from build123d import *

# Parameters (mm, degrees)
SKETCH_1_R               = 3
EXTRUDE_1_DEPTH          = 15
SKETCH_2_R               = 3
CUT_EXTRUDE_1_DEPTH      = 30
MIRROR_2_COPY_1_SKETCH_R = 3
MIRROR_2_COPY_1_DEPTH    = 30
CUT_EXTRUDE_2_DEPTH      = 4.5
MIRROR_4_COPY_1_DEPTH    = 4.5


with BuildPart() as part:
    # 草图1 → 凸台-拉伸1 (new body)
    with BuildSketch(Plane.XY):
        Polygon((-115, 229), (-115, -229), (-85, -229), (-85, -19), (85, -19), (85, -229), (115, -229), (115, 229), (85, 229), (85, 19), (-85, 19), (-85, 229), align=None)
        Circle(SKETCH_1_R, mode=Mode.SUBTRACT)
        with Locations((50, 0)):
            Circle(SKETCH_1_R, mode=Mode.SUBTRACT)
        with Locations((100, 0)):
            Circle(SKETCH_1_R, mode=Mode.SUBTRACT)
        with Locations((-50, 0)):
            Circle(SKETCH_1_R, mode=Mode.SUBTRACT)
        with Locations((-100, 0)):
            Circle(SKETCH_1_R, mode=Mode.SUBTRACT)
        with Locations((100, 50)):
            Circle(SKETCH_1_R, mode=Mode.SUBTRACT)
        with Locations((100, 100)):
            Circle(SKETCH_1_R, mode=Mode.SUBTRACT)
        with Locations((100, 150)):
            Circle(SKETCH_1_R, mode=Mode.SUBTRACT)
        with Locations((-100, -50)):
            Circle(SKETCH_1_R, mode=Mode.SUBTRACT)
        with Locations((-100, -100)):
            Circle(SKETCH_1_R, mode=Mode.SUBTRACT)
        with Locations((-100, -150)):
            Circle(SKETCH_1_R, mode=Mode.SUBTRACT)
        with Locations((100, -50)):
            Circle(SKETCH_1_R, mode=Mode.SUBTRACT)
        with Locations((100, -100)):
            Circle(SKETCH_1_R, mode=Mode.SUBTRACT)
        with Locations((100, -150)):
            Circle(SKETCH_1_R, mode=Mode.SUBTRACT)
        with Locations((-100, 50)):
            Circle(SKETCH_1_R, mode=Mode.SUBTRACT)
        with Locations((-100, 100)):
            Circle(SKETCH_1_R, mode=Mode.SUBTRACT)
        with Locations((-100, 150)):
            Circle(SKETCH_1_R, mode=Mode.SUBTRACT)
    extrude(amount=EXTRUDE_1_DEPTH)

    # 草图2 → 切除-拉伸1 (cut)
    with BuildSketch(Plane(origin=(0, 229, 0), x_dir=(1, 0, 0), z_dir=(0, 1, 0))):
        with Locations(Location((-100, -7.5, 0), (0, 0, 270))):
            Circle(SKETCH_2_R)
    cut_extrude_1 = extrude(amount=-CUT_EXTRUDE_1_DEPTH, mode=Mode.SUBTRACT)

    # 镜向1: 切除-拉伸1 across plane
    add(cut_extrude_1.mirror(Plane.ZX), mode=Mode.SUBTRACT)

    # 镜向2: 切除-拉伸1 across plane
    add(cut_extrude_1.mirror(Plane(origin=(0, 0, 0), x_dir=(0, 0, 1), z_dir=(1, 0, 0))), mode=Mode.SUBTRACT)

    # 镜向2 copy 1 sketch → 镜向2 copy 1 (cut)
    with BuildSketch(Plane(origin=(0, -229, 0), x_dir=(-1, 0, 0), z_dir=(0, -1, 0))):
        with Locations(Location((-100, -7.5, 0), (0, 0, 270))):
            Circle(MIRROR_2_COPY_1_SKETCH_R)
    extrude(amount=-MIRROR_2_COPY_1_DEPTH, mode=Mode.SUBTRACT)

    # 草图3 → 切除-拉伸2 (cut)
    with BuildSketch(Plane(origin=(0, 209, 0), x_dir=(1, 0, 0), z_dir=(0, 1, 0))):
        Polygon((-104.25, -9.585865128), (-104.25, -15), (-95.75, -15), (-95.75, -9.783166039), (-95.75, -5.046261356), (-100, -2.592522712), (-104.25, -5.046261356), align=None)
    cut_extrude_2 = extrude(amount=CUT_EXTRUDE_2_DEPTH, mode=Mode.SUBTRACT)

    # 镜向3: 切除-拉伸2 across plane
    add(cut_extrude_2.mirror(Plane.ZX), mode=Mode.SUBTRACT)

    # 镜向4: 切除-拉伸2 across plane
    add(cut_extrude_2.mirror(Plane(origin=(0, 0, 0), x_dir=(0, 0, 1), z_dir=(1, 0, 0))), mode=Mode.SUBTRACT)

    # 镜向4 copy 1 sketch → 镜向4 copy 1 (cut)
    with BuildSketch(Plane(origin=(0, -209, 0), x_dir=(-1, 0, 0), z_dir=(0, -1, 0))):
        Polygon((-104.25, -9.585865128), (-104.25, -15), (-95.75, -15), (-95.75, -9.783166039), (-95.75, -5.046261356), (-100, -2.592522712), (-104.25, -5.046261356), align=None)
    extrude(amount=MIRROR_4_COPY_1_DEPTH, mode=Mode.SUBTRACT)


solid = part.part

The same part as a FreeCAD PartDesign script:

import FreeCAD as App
import Part
import Sketcher
from FreeCAD import Vector
Q = App.Units.Quantity

doc = App.newDocument("Part")
body = doc.addObject("PartDesign::Body", "Body")

# Sketch on XY plane
sketch1 = body.newObject("Sketcher::SketchObject", "Sketch")
sketch1.AttachmentSupport = (doc.getObject("XY_Plane"), [""])
sketch1.MapMode = "FlatFace"
sketch1.addGeometry([
    Part.LineSegment(Vector(-115, 229, 0), Vector(-115, -229, 0)),  # 0
    Part.LineSegment(Vector(-115, -229, 0), Vector(-85, -229, 0)),  # 1
    Part.LineSegment(Vector(-85, -229, 0), Vector(-85, -19, 0)),  # 2
    Part.LineSegment(Vector(-85, -19, 0), Vector(85, -19, 0)),  # 3
    Part.LineSegment(Vector(85, -19, 0), Vector(85, -229, 0)),  # 4
    Part.LineSegment(Vector(85, -229, 0), Vector(115, -229, 0)),  # 5
    Part.LineSegment(Vector(115, -229, 0), Vector(115, 229, 0)),  # 6
    Part.LineSegment(Vector(115, 229, 0), Vector(85, 229, 0)),  # 7
    Part.LineSegment(Vector(85, 229, 0), Vector(85, 19, 0)),  # 8
    Part.LineSegment(Vector(85, 19, 0), Vector(-85, 19, 0)),  # 9
    Part.LineSegment(Vector(-85, 19, 0), Vector(-85, 229, 0)),  # 10
    Part.LineSegment(Vector(-85, 229, 0), Vector(-115, 229, 0)),  # 11
    Part.Circle(Vector(-100, -150, 0), Vector(0, 0, 1), 3),  # 12
    Part.Circle(Vector(-100, -100, 0), Vector(0, 0, 1), 3),  # 13
    Part.Circle(Vector(-100, -50, 0), Vector(0, 0, 1), 3),  # 14
    Part.Circle(Vector(100, -150, 0), Vector(0, 0, 1), 3),  # 15
    Part.Circle(Vector(100, -100, 0), Vector(0, 0, 1), 3),  # 16
    Part.Circle(Vector(100, -50, 0), Vector(0, 0, 1), 3),  # 17
    Part.Circle(Vector(-100, 0, 0), Vector(0, 0, 1), 3),  # 18
    Part.Circle(Vector(-100, 50, 0), Vector(0, 0, 1), 3),  # 19
    Part.Circle(Vector(-50, 0, 0), Vector(0, 0, 1), 3),  # 20
    Part.Circle(Vector(0, 0, 0), Vector(0, 0, 1), 3),  # 21
    Part.Circle(Vector(-100, 100, 0), Vector(0, 0, 1), 3),  # 22
    Part.Circle(Vector(-100, 150, 0), Vector(0, 0, 1), 3),  # 23
    Part.Circle(Vector(50, 0, 0), Vector(0, 0, 1), 3),  # 24
    Part.Circle(Vector(100, 0, 0), Vector(0, 0, 1), 3),  # 25
    Part.Circle(Vector(100, 50, 0), Vector(0, 0, 1), 3),  # 26
    Part.Circle(Vector(100, 100, 0), Vector(0, 0, 1), 3),  # 27
    Part.Circle(Vector(100, 150, 0), Vector(0, 0, 1), 3),  # 28
], False)
sketch1.addConstraint([
    Sketcher.Constraint("Coincident", 0, 2, 1, 1),
    Sketcher.Constraint("Coincident", 1, 2, 2, 1),
    Sketcher.Constraint("Coincident", 2, 2, 3, 1),
    Sketcher.Constraint("Coincident", 3, 2, 4, 1),
    Sketcher.Constraint("Coincident", 4, 2, 5, 1),
    Sketcher.Constraint("Coincident", 5, 2, 6, 1),
    Sketcher.Constraint("Coincident", 6, 2, 7, 1),
    Sketcher.Constraint("Coincident", 7, 2, 8, 1),
    Sketcher.Constraint("Coincident", 8, 2, 9, 1),
    Sketcher.Constraint("Coincident", 9, 2, 10, 1),
    Sketcher.Constraint("Coincident", 10, 2, 11, 1),
    Sketcher.Constraint("Coincident", 11, 2, 0, 1),
    Sketcher.Constraint("Vertical", 0),
    Sketcher.Constraint("Horizontal", 1),
    Sketcher.Constraint("Vertical", 2),
    Sketcher.Constraint("Horizontal", 3),
    Sketcher.Constraint("Vertical", 4),
    Sketcher.Constraint("Horizontal", 5),
    Sketcher.Constraint("Vertical", 6),
    Sketcher.Constraint("Horizontal", 7),
    Sketcher.Constraint("Vertical", 8),
    Sketcher.Constraint("Horizontal", 9),
    Sketcher.Constraint("Vertical", 10),
    Sketcher.Constraint("Horizontal", 11),
    Sketcher.Constraint("Coincident", 21, 3, -1, 1),
    Sketcher.Constraint("Equal", 12, 13),
    Sketcher.Constraint("Equal", 13, 14),
    Sketcher.Constraint("Equal", 14, 15),
    Sketcher.Constraint("Equal", 15, 16),
    Sketcher.Constraint("Equal", 16, 17),
    Sketcher.Constraint("Equal", 17, 18),
    Sketcher.Constraint("Equal", 18, 19),
    Sketcher.Constraint("Equal", 19, 20),
    Sketcher.Constraint("Equal", 20, 21),
    Sketcher.Constraint("Equal", 21, 22),
    Sketcher.Constraint("Equal", 22, 23),
    Sketcher.Constraint("Equal", 23, 24),
    Sketcher.Constraint("Equal", 24, 25),
    Sketcher.Constraint("Equal", 25, 26),
    Sketcher.Constraint("Equal", 26, 27),
    Sketcher.Constraint("Equal", 27, 28),
    Sketcher.Constraint("Symmetric", 17, 3, 19, 3, -1, 1),
    Sketcher.Constraint("Symmetric", 16, 3, 22, 3, -1, 1),
    Sketcher.Constraint("Symmetric", 15, 3, 23, 3, -1, 1),
    Sketcher.Constraint("Symmetric", 20, 3, 24, 3, -1, 1),
    Sketcher.Constraint("Symmetric", 18, 3, 25, 3, -1, 1),
    Sketcher.Constraint("Symmetric", 14, 3, 26, 3, -1, 1),
    Sketcher.Constraint("Symmetric", 13, 3, 27, 3, -1, 1),
    Sketcher.Constraint("Symmetric", 12, 3, 28, 3, -1, 1),
    Sketcher.Constraint("Symmetric", 0, 2, 6, 2, -1, 1),
    Sketcher.Constraint("Symmetric", 2, 2, 8, 2, -1, 1),
    Sketcher.Constraint("Symmetric", 4, 2, 10, 2, -1, 1),
    Sketcher.Constraint("Symmetric", 12, 3, 15, 3, -2),
    Sketcher.Constraint("Symmetric", 13, 3, 16, 3, -2),
    Sketcher.Constraint("Symmetric", 14, 3, 17, 3, -2),
    Sketcher.Constraint("Symmetric", 1, 2, 4, 2, -2),
    Sketcher.Constraint("PointOnObject", 18, 3, -1),
    Sketcher.Constraint("PointOnObject", 20, 3, -1),
    Sketcher.Constraint("Vertical", 12, 3, 13, 3),
    Sketcher.Constraint("Vertical", 13, 3, 14, 3),
    Sketcher.Constraint("Vertical", 14, 3, 18, 3),
    Sketcher.Constraint("Diameter", 12, 6.0),
    Sketcher.Constraint("DistanceX", 1, 1, 1, 2, 30.0),
    Sketcher.Constraint("DistanceX", 3, 1, 3, 2, 170.0),
    Sketcher.Constraint("DistanceY", 0, 2, 0, 1, 458.0),
    Sketcher.Constraint("DistanceY", 2, 1, 2, 2, 210.0),
    Sketcher.Constraint("DistanceX", 12, 3, -1, 1, 100.0),
    Sketcher.Constraint("DistanceY", 12, 3, -1, 1, 150.0),
    Sketcher.Constraint("DistanceY", 13, 3, -1, 1, 100.0),
    Sketcher.Constraint("DistanceY", 14, 3, -1, 1, 50.0),
    Sketcher.Constraint("DistanceX", 20, 3, -1, 1, 50.0),
])
pad1 = body.newObject("PartDesign::Pad", "Pad")
pad1.Profile = sketch1
pad1.Length = 15

# Sketch on XZ plane
sketch2 = body.newObject("Sketcher::SketchObject", "Sketch001")
sketch2.AttachmentSupport = (doc.getObject("XZ_Plane"), [""])
sketch2.MapMode = "FlatFace"
sketch2.AttachmentOffset = App.Placement(Vector(0, 0, -229), App.Rotation())
sketch2.addGeometry(Part.Circle(Vector(-100, 7.5, 0), Vector(0, 0, 1), 3), False)
sketch2.addConstraint([
    Sketcher.Constraint("Diameter", 0, 6.0),
    Sketcher.Constraint("DistanceX", 0, 3, -1, 1, 100.0),
    Sketcher.Constraint("DistanceY", -1, 1, 0, 3, 7.5),
])
pocket1 = body.newObject("PartDesign::Pocket", "Pocket")
pocket1.Profile = sketch2
pocket1.Length = 30
pocket1.Reversed = True
doc.recompute()

mirrored = body.newObject("PartDesign::Mirrored", "Mirrored")
mirrored.Originals = [pocket1]
mirrored.MirrorPlane = (doc.getObject("XZ_Plane"), [""])
body.Tip = mirrored
doc.recompute()

mirrored2 = body.newObject("PartDesign::Mirrored", "Mirrored001")
mirrored2.Originals = [pocket1]
mirrored2.MirrorPlane = (doc.getObject("YZ_Plane"), [""])
body.Tip = mirrored2

# Sketch on XZ plane
sketch3 = body.newObject("Sketcher::SketchObject", "Sketch002")
sketch3.AttachmentSupport = (doc.getObject("XZ_Plane"), [""])
sketch3.MapMode = "FlatFace"
sketch3.AttachmentOffset = App.Placement(Vector(0, 0, 229), App.Rotation())
sketch3.addGeometry(Part.Circle(Vector(100, 7.5, 0), Vector(0, 0, 1), 3), False)
sketch3.addConstraint([
    Sketcher.Constraint("Diameter", 0, 6.0),
    Sketcher.Constraint("DistanceX", -1, 1, 0, 3, 100.0),
    Sketcher.Constraint("DistanceY", -1, 1, 0, 3, 7.5),
])
pocket2 = body.newObject("PartDesign::Pocket", "Pocket001")
pocket2.Profile = sketch3
pocket2.Length = 30

# Sketch on XZ plane
sketch4 = body.newObject("Sketcher::SketchObject", "Sketch003")
sketch4.AttachmentSupport = (doc.getObject("XZ_Plane"), [""])
sketch4.MapMode = "FlatFace"
sketch4.AttachmentOffset = App.Placement(Vector(0, 0, -209), App.Rotation())
sketch4.addGeometry([
    Part.LineSegment(Vector(-104.2, 15, 0), Vector(-95.8, 15, 0)),  # 0
    Part.LineSegment(Vector(-95.8, 15, 0), Vector(-95.8, 5, 0)),  # 1
    Part.LineSegment(Vector(-95.8, 5, 0), Vector(-100, 2.6, 0)),  # 2
    Part.LineSegment(Vector(-100, 2.6, 0), Vector(-104.2, 5, 0)),  # 3
    Part.LineSegment(Vector(-104.2, 5, 0), Vector(-104.2, 15, 0)),  # 4
], False)
sketch4.addConstraint([
    Sketcher.Constraint("Coincident", 0, 2, 1, 1),
    Sketcher.Constraint("Coincident", 1, 2, 2, 1),
    Sketcher.Constraint("Coincident", 2, 2, 3, 1),
    Sketcher.Constraint("Coincident", 3, 2, 4, 1),
    Sketcher.Constraint("Coincident", 4, 2, 0, 1),
    Sketcher.Constraint("Horizontal", 0),
    Sketcher.Constraint("Vertical", 1),
    Sketcher.Constraint("Vertical", 4),
    Sketcher.Constraint("Horizontal", 1, 2, 3, 2),
    Sketcher.Constraint("Equal", 2, 3),
    Sketcher.Constraint("Angle", 2, Q("-150 deg")),
    Sketcher.Constraint("DistanceX", 0, 1, 0, 2, 8.5),
    Sketcher.Constraint("DistanceY", -1, 1, 0, 2, 15.0),
    Sketcher.Constraint("DistanceX", 2, 2, -1, 1, 100.0),
    Sketcher.Constraint("DistanceY", 1, 2, 1, 1, 9.953739),
])
pocket3 = body.newObject("PartDesign::Pocket", "Pocket002")
pocket3.Profile = sketch4
pocket3.Length = 4.5
doc.recompute()

mirrored3 = body.newObject("PartDesign::Mirrored", "Mirrored002")
mirrored3.Originals = [pocket3]
mirrored3.MirrorPlane = (doc.getObject("XZ_Plane"), [""])
body.Tip = mirrored3
doc.recompute()

mirrored4 = body.newObject("PartDesign::Mirrored", "Mirrored003")
mirrored4.Originals = [pocket3]
mirrored4.MirrorPlane = (doc.getObject("YZ_Plane"), [""])
body.Tip = mirrored4

# Sketch on XZ plane
sketch5 = body.newObject("Sketcher::SketchObject", "Sketch004")
sketch5.AttachmentSupport = (doc.getObject("XZ_Plane"), [""])
sketch5.MapMode = "FlatFace"
sketch5.AttachmentOffset = App.Placement(Vector(0, 0, 209), App.Rotation())
sketch5.addGeometry([
    Part.LineSegment(Vector(104.2, 15, 0), Vector(95.8, 15, 0)),  # 0
    Part.LineSegment(Vector(95.8, 15, 0), Vector(95.8, 5, 0)),  # 1
    Part.LineSegment(Vector(95.8, 5, 0), Vector(100, 2.6, 0)),  # 2
    Part.LineSegment(Vector(100, 2.6, 0), Vector(104.2, 5, 0)),  # 3
    Part.LineSegment(Vector(104.2, 5, 0), Vector(104.2, 15, 0)),  # 4
], False)
sketch5.addConstraint([
    Sketcher.Constraint("Coincident", 0, 2, 1, 1),
    Sketcher.Constraint("Coincident", 1, 2, 2, 1),
    Sketcher.Constraint("Coincident", 2, 2, 3, 1),
    Sketcher.Constraint("Coincident", 3, 2, 4, 1),
    Sketcher.Constraint("Coincident", 4, 2, 0, 1),
    Sketcher.Constraint("Horizontal", 0),
    Sketcher.Constraint("Vertical", 1),
    Sketcher.Constraint("Vertical", 4),
    Sketcher.Constraint("Horizontal", 1, 2, 3, 2),
    Sketcher.Constraint("Equal", 2, 3),
    Sketcher.Constraint("Angle", 2, Q("-30 deg")),
    Sketcher.Constraint("DistanceX", 0, 2, 0, 1, 8.5),
    Sketcher.Constraint("DistanceY", -1, 1, 0, 2, 15.0),
    Sketcher.Constraint("DistanceX", -1, 1, 2, 2, 100.0),
    Sketcher.Constraint("DistanceY", 1, 2, 1, 1, 9.953739),
])
pocket4 = body.newObject("PartDesign::Pocket", "Pocket003")
pocket4.Profile = sketch5
pocket4.Length = 4.5
pocket4.Reversed = True

doc.recompute()
